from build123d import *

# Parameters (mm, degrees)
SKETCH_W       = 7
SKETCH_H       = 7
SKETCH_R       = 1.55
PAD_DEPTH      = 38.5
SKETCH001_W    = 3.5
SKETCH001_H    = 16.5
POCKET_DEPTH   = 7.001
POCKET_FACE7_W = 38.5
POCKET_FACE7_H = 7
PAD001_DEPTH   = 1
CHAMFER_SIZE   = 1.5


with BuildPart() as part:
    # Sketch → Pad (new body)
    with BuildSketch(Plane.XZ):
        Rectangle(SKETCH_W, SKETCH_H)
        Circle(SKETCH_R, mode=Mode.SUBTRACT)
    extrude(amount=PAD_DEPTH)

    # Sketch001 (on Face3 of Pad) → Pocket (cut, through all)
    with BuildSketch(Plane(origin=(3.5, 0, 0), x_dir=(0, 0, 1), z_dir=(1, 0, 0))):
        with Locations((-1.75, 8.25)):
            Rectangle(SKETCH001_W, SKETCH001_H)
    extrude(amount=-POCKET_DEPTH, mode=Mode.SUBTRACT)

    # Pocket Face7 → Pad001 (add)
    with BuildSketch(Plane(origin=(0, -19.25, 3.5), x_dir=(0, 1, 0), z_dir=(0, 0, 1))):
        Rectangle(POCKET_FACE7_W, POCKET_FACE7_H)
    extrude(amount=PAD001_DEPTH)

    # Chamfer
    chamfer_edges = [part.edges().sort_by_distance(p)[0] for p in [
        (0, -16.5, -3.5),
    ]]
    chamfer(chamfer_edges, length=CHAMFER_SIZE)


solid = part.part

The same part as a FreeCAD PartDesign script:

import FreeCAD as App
import Part
import Sketcher
from FreeCAD import Vector


def edges_at(feature, points):
    """Names of the edges that pass closest to the given points."""
    edges = feature.Shape.Edges
    near = lambda p: min(range(len(edges)), key=lambda i: edges[i].distToShape(Part.Vertex(*p))[0])
    return sorted({f"Edge{near(p) + 1}" for p in points})


def add_polygon(sketch, points):
    """Adds a closed chain of lines whose ends are joined by coincident constraints."""
    first, n = sketch.GeometryCount, len(points)
    for a, b in zip(points, points[1:] + points[:1]):
        sketch.addGeometry(Part.LineSegment(App.Vector(*a, 0), App.Vector(*b, 0)), False)
    for i in range(n):
        sketch.addConstraint(Sketcher.Constraint("Coincident", first + i, 2, first + (i + 1) % n, 1))

doc = App.newDocument("Part")
params = doc.addObject("Spreadsheet::Sheet", "Params")
for row, (alias, value) in enumerate([
    ("sketch1_diameter", "3.1 mm"),
    ("sketch1_width", "7 mm"),
    ("pad1_length", "38.5 mm"),
    ("sketch2_width", "16.5 mm"),
    ("sketch2_height", "3.5 mm"),
    ("sketch3_width", "7 mm"),
    ("sketch3_height", "38.5 mm"),
    ("pad2_length", "1 mm"),
    ("chamfer_size", "1.5 mm"),
], start=1):
    params.set(f"A{row}", alias)
    params.set(f"B{row}", "=" + value)
    params.setAlias(f"B{row}", alias)

body = doc.addObject("PartDesign::Body", "Body")

# Sketch on XZ plane
sketch1 = body.newObject("Sketcher::SketchObject", "Sketch")
sketch1.AttachmentSupport = (doc.getObject("XZ_Plane"), [""])
sketch1.MapMode = "FlatFace"
add_polygon(sketch1, [(-3.5, 3.5), (-3.5, -3.5), (3.5, -3.5), (3.5, 3.5)])  # lines 0-3
sketch1.addGeometry(Part.Circle(Vector(0, 0, 0), Vector(0, 0, 1), 1.6), False)  # 4
sketch1.addConstraint([
    Sketcher.Constraint("Vertical", 0),
    Sketcher.Constraint("Horizontal", 1),
    Sketcher.Constraint("Vertical", 2),
    Sketcher.Constraint("Horizontal", 3),
    Sketcher.Constraint("Coincident", 4, 3, -1, 1),
    Sketcher.Constraint("Symmetric", 0, 2, 2, 2, -1, 1),
    Sketcher.Constraint("Equal", 3, 0),
    Sketcher.Constraint("Diameter", 4, 3.1),
    Sketcher.Constraint("DistanceX", 1, 1, 1, 2, 7.0),
])
sketch1.setExpression("Constraints[11]", "Params.sketch1_diameter")
sketch1.setExpression("Constraints[12]", "Params.sketch1_width")
pad1 = body.newObject("PartDesign::Pad", "Pad")
pad1.Profile = sketch1
pad1.setExpression("Length", "Params.pad1_length")

# Sketch on YZ plane
sketch2 = body.newObject("Sketcher::SketchObject", "Sketch001")
sketch2.AttachmentSupport = (doc.getObject("YZ_Plane"), [""])
sketch2.MapMode = "FlatFace"
sketch2.AttachmentOffset = App.Placement(Vector(0, 0, 3.5), App.Rotation())
add_polygon(sketch2, [(-16.5, -3.5), (0, -3.5), (0, 0), (-16.5, 0)])  # lines 0-3
sketch2.addConstraint([
    Sketcher.Constraint("Horizontal", 0),
    Sketcher.Constraint("Vertical", 1),
    Sketcher.Constraint("Horizontal", 2),
    Sketcher.Constraint("Vertical", 3),
    Sketcher.Constraint("Coincident", 1, 2, -1, 1),
    Sketcher.Constraint("DistanceX", 0, 1, 0, 2, 16.5),
    Sketcher.Constraint("DistanceY", 1, 1, 1, 2, 3.5),
])
sketch2.setExpression("Constraints[9]", "Params.sketch2_width")
sketch2.setExpression("Constraints[10]", "Params.sketch2_height")
pocket1 = body.newObject("PartDesign::Pocket", "Pocket")
pocket1.Profile = sketch2
pocket1.Type = "ThroughAll"

# Sketch on XY plane
sketch3 = body.newObject("Sketcher::SketchObject", "Sketch002")
sketch3.AttachmentSupport = (doc.getObject("XY_Plane"), [""])
sketch3.MapMode = "FlatFace"
sketch3.AttachmentOffset = App.Placement(Vector(0, 0, 3.5), App.Rotation())
add_polygon(sketch3, [(-4, -38), (4, -38), (4, 0), (-4, 0)])  # lines 0-3
sketch3.addConstraint([
    Sketcher.Constraint("Horizontal", 0),
    Sketcher.Constraint("Vertical", 1),
    Sketcher.Constraint("Horizontal", 2),
    Sketcher.Constraint("Vertical", 3),
    Sketcher.Constraint("Symmetric", 1, 2, 2, 2, -1, 1),
    Sketcher.Constraint("DistanceX", 0, 1, 0, 2, 7.0),
    Sketcher.Constraint("DistanceY", 1, 1, 1, 2, 38.5),
])
sketch3.setExpression("Constraints[9]", "Params.sketch3_width")
sketch3.setExpression("Constraints[10]", "Params.sketch3_height")
pad2 = body.newObject("PartDesign::Pad", "Pad001")
pad2.Profile = sketch3
pad2.setExpression("Length", "Params.pad2_length")
doc.recompute()

chamfer = body.newObject("PartDesign::Chamfer", "Chamfer")
chamfer.Base = (pad2, edges_at(pad2, [(0, -16.5, -3.5)]))
chamfer.setExpression("Size", "Params.chamfer_size")

doc.recompute()
